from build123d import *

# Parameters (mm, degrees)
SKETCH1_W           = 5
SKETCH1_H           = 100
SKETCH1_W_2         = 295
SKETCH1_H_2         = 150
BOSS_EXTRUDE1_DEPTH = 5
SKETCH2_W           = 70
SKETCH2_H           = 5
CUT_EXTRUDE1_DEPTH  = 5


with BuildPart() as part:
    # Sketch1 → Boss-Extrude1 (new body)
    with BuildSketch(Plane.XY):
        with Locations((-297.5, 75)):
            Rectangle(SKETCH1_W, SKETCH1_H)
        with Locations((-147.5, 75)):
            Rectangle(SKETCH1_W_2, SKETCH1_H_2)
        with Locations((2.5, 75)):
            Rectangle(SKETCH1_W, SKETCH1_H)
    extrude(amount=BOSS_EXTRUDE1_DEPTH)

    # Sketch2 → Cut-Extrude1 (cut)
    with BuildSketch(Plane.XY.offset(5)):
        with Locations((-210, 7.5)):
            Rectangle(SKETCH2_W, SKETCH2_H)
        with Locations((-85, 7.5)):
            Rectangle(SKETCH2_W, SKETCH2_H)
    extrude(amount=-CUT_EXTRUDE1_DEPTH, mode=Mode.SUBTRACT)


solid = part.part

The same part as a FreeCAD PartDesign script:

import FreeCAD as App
import Part
import Sketcher
Q = App.Units.Quantity

doc = App.newDocument("Part")
params = doc.addObject("Spreadsheet::Sheet", "Params")
for row, (alias, value) in enumerate([
    ("sketch1_width", "5 mm"),
    ("sketch1_width2", "295 mm"),
    ("sketch1_height", "100 mm"),
    ("sketch1_height2", "25 mm"),
    ("pad1_length", "5 mm"),
    ("sketch2_width", "70 mm"),
    ("sketch2_height", "5 mm"),
    ("pocket1_length", "5 mm"),
], start=1):
    params.set(f"A{row}", alias)
    params.set(f"B{row}", "=" + value)
    params.setAlias(f"B{row}", alias)

body = doc.addObject("PartDesign::Body", "Body")

# Sketch on XY plane
sketch1 = doc.addObject("Sketcher::SketchObject", "Sketch")
body.addObject(sketch1)
sketch1.AttachmentSupport = (doc.XY_Plane, [""])
sketch1.MapMode = "FlatFace"
sketch1.addGeometry([
    Part.LineSegment(App.Vector(-300, 125, 0), App.Vector(-300, 25, 0)),  # 0
    Part.LineSegment(App.Vector(-300, 25, 0), App.Vector(-295, 25, 0)),  # 1
    Part.LineSegment(App.Vector(-295, 25, 0), App.Vector(-295, 0, 0)),  # 2
    Part.LineSegment(App.Vector(-295, 0, 0), App.Vector(0, 0, 0)),  # 3
    Part.LineSegment(App.Vector(0, 0, 0), App.Vector(0, 25, 0)),  # 4
    Part.LineSegment(App.Vector(0, 25, 0), App.Vector(5, 25, 0)),  # 5
    Part.LineSegment(App.Vector(5, 25, 0), App.Vector(5, 125, 0)),  # 6
    Part.LineSegment(App.Vector(5, 125, 0), App.Vector(0, 125, 0)),  # 7
    Part.LineSegment(App.Vector(0, 125, 0), App.Vector(0, 150, 0)),  # 8
    Part.LineSegment(App.Vector(0, 150, 0), App.Vector(-295, 150, 0)),  # 9
    Part.LineSegment(App.Vector(-295, 150, 0), App.Vector(-295, 125, 0)),  # 10
    Part.LineSegment(App.Vector(-295, 125, 0), App.Vector(-300, 125, 0)),  # 11
], False)
sketch1.addConstraint([
    Sketcher.Constraint("Coincident", 0, 2, 1, 1),
    Sketcher.Constraint("Coincident", 1, 2, 2, 1),
    Sketcher.Constraint("Coincident", 2, 2, 3, 1),
    Sketcher.Constraint("Coincident", 3, 2, 4, 1),
    Sketcher.Constraint("Coincident", 4, 2, 5, 1),
    Sketcher.Constraint("Coincident", 5, 2, 6, 1),
    Sketcher.Constraint("Coincident", 6, 2, 7, 1),
    Sketcher.Constraint("Coincident", 7, 2, 8, 1),
    Sketcher.Constraint("Coincident", 8, 2, 9, 1),
    Sketcher.Constraint("Coincident", 9, 2, 10, 1),
    Sketcher.Constraint("Coincident", 10, 2, 11, 1),
    Sketcher.Constraint("Coincident", 11, 2, 0, 1),
    Sketcher.Constraint("Vertical", 0),
    Sketcher.Constraint("Horizontal", 1),
    Sketcher.Constraint("Vertical", 2),
    Sketcher.Constraint("Horizontal", 3),
    Sketcher.Constraint("Vertical", 4),
    Sketcher.Constraint("Horizontal", 5),
    Sketcher.Constraint("Vertical", 6),
    Sketcher.Constraint("Horizontal", 7),
    Sketcher.Constraint("Vertical", 8),
    Sketcher.Constraint("Horizontal", 9),
    Sketcher.Constraint("Vertical", 10),
    Sketcher.Constraint("Horizontal", 11),
    Sketcher.Constraint("Coincident", 3, 2, -1, 1),
    Sketcher.Constraint("PointOnObject", 7, 2, -2),
    Sketcher.Constraint("Horizontal", 1, 2, 4, 2),
    Sketcher.Constraint("Horizontal", 7, 2, 10, 2),
    Sketcher.Constraint("Vertical", 2, 2, 9, 2),
    Sketcher.Constraint("Equal", 1, 5),
    Sketcher.Constraint("Equal", 4, 8),
    Sketcher.Constraint("DistanceX", 1, 1, 1, 2, Q("5 mm")),
    Sketcher.Constraint("DistanceX", 3, 1, 3, 2, Q("295 mm")),
    Sketcher.Constraint("DistanceY", 0, 2, 0, 1, Q("100 mm")),
    Sketcher.Constraint("DistanceY", 2, 2, 2, 1, Q("25 mm")),
])
sketch1.setExpression("Constraints[31]", "Params.sketch1_width")
sketch1.setExpression("Constraints[32]", "Params.sketch1_width2")
sketch1.setExpression("Constraints[33]", "Params.sketch1_height")
sketch1.setExpression("Constraints[34]", "Params.sketch1_height2")
pad1 = doc.addObject("PartDesign::Pad", "Pad")
body.addObject(pad1)
pad1.Profile = sketch1
pad1.setExpression("Length", "Params.pad1_length")

# Sketch on XY plane
sketch2 = doc.addObject("Sketcher::SketchObject", "Sketch001")
body.addObject(sketch2)
sketch2.AttachmentSupport = (doc.XY_Plane, [""])
sketch2.MapMode = "FlatFace"
sketch2.AttachmentOffset = App.Placement(App.Vector(0, 0, 5), App.Rotation())
sketch2.addGeometry([
    Part.LineSegment(App.Vector(-245, 10, 0), App.Vector(-245, 5, 0)),  # 0
    Part.LineSegment(App.Vector(-245, 5, 0), App.Vector(-175, 5, 0)),  # 1
    Part.LineSegment(App.Vector(-175, 5, 0), App.Vector(-175, 10, 0)),  # 2
    Part.LineSegment(App.Vector(-175, 10, 0), App.Vector(-245, 10, 0)),  # 3
    Part.LineSegment(App.Vector(-120, 10, 0), App.Vector(-120, 5, 0)),  # 4
    Part.LineSegment(App.Vector(-120, 5, 0), App.Vector(-50, 5, 0)),  # 5
    Part.LineSegment(App.Vector(-50, 5, 0), App.Vector(-50, 10, 0)),  # 6
    Part.LineSegment(App.Vector(-50, 10, 0), App.Vector(-120, 10, 0)),  # 7
], False)
sketch2.addConstraint([
    Sketcher.Constraint("Coincident", 0, 2, 1, 1),
    Sketcher.Constraint("Coincident", 1, 2, 2, 1),
    Sketcher.Constraint("Coincident", 2, 2, 3, 1),
    Sketcher.Constraint("Coincident", 3, 2, 0, 1),
    Sketcher.Constraint("Coincident", 4, 2, 5, 1),
    Sketcher.Constraint("Coincident", 5, 2, 6, 1),
    Sketcher.Constraint("Coincident", 6, 2, 7, 1),
    Sketcher.Constraint("Coincident", 7, 2, 4, 1),
    Sketcher.Constraint("Vertical", 0),
    Sketcher.Constraint("Horizontal", 1),
    Sketcher.Constraint("Vertical", 2),
    Sketcher.Constraint("Horizontal", 3),
    Sketcher.Constraint("Vertical", 4),
    Sketcher.Constraint("Horizontal", 5),
    Sketcher.Constraint("Vertical", 6),
    Sketcher.Constraint("Horizontal", 7),
    Sketcher.Constraint("Horizontal", 1, 2, 4, 2),
    Sketcher.Constraint("Horizontal", 3, 2, 6, 2),
    Sketcher.Constraint("Equal", 3, 5),
    Sketcher.Constraint("DistanceX", 1, 1, 1, 2, Q("70 mm")),
    Sketcher.Constraint("DistanceY", 0, 2, 0, 1, Q("5 mm")),
    Sketcher.Constraint("DistanceX", 0, 2, -1, 1, Q("245 mm")),
    Sketcher.Constraint("DistanceY", -1, 1, 0, 2, Q("5 mm")),
    Sketcher.Constraint("DistanceX", 4, 2, -1, 1, Q("120 mm")),
])
sketch2.setExpression("Constraints[19]", "Params.sketch2_width")
sketch2.setExpression("Constraints[20]", "Params.sketch2_height")
pocket1 = doc.addObject("PartDesign::Pocket", "Pocket")
body.addObject(pocket1)
pocket1.Profile = sketch2
pocket1.setExpression("Length", "Params.pocket1_length")

doc.recompute()
